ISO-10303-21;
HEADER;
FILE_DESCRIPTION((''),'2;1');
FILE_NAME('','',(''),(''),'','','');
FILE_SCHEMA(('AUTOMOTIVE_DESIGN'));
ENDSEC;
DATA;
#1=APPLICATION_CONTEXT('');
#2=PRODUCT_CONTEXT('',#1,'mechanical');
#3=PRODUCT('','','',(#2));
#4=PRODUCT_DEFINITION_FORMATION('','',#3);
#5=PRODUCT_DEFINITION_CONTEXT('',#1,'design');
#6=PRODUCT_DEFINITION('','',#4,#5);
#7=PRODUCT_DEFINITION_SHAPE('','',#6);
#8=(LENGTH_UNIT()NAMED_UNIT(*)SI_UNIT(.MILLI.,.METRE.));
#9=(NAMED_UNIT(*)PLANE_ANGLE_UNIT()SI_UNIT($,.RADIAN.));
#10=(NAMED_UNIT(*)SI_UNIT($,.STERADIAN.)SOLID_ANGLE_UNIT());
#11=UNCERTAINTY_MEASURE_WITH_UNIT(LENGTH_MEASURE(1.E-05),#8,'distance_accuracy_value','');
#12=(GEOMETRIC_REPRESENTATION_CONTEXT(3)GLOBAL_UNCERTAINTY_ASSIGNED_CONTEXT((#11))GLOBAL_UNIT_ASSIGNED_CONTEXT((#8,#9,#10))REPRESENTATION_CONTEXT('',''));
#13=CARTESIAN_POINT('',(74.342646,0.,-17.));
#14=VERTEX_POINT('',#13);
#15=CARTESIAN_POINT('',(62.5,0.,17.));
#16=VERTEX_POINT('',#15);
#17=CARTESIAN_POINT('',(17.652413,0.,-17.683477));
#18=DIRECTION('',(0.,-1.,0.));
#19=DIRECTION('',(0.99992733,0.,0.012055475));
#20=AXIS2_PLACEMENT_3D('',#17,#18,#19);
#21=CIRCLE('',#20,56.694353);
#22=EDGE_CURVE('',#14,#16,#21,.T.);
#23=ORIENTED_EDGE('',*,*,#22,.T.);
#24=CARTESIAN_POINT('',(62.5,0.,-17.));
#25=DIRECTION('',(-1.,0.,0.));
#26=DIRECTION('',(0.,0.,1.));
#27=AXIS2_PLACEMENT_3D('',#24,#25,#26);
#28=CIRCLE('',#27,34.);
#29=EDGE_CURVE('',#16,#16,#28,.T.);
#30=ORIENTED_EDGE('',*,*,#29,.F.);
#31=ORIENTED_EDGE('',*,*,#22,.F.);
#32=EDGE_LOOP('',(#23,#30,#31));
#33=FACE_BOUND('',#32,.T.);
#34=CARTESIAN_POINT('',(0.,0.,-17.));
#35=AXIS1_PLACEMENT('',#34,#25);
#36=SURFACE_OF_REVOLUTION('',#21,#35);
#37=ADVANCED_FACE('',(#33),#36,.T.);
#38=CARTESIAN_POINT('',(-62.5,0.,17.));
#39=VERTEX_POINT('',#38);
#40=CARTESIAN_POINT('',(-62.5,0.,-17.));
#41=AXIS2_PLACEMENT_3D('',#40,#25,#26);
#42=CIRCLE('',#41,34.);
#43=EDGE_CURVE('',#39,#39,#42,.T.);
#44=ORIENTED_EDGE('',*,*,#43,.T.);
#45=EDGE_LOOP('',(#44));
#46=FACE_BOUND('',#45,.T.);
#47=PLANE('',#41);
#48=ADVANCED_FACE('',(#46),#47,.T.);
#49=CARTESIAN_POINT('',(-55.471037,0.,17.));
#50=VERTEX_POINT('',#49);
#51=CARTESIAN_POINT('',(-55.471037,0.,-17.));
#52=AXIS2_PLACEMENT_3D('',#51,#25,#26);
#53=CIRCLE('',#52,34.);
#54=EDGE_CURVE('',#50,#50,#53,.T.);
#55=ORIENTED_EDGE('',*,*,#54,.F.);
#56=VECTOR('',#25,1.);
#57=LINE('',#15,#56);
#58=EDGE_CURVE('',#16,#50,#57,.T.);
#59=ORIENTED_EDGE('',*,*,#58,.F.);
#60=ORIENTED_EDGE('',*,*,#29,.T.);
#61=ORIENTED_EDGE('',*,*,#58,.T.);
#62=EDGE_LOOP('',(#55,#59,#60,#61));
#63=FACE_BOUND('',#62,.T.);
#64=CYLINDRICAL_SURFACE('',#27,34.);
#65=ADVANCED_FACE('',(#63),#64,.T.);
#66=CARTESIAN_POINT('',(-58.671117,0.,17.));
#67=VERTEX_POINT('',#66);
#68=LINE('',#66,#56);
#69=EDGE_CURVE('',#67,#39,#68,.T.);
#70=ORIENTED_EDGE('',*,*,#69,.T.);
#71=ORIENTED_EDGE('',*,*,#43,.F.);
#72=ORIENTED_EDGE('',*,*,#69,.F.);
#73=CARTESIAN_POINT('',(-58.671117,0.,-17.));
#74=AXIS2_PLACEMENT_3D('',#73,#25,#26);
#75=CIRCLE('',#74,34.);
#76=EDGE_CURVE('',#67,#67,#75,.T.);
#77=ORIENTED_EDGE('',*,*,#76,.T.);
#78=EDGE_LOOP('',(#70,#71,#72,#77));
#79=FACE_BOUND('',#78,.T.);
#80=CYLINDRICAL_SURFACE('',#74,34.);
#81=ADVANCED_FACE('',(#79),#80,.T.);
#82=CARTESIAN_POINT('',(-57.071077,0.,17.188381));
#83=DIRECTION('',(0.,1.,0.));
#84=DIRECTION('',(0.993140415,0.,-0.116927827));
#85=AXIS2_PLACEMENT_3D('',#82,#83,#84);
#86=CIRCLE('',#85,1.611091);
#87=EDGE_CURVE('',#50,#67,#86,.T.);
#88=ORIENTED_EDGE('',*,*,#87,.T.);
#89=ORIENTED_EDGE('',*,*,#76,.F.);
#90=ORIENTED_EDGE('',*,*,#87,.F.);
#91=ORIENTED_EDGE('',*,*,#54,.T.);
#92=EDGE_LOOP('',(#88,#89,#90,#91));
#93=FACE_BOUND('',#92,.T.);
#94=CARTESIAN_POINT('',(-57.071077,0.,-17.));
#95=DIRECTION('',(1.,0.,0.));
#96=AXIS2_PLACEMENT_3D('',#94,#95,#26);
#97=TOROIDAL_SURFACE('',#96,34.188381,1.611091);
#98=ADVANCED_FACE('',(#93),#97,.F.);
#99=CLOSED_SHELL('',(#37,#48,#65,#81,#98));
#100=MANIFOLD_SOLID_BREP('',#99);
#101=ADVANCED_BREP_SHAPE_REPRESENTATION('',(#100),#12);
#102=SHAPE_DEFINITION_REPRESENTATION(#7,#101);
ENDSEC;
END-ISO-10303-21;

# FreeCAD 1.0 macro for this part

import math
import FreeCAD as App
import Part
import Sketcher
from FreeCAD import Vector
Q = App.Units.Quantity

doc = App.newDocument("Part")
body = doc.addObject("PartDesign::Body", "Body")

sketch1 = body.newObject("Sketcher::SketchObject", "Sketch")
sketch1.AttachmentSupport = (doc.getObject("XZ_Plane"), [""])
sketch1.MapMode = "FlatFace"
sketch1.addGeometry([
    Part.ArcOfCircle(Part.Circle(Vector(17.652413, -17.683477, 0), Vector(0, 0, 1), 56.694353), math.radians(0.690745), math.radians(37.71705)),
    Part.LineSegment(Vector(62.5, 17, 0), Vector(-55.471037, 17, 0)),
    Part.ArcOfCircle(Part.Circle(Vector(-57.071077, 17.188381, 0), Vector(0, 0, 1), 1.611091), math.radians(-173.285168), math.radians(-6.714832)),
    Part.LineSegment(Vector(-58.671117, 17, 0), Vector(-62.5, 17, 0)),
    Part.LineSegment(Vector(-62.5, 17, 0), Vector(-62.5, -17, 0)),
    Part.LineSegment(Vector(-62.5, -17, 0), Vector(74.342646, -17, 0)),
], False)
sketch1.addGeometry(Part.LineSegment(Vector(74.342646, -17, 0), Vector(-62.5, -17, 0)), True)
sketch1.addConstraint([
    Sketcher.Constraint("Coincident", 0, 2, 1, 1),
    Sketcher.Constraint("Coincident", 1, 2, 2, 2),
    Sketcher.Constraint("Coincident", 2, 1, 3, 1),
    Sketcher.Constraint("Coincident", 3, 2, 4, 1),
    Sketcher.Constraint("Coincident", 4, 2, 5, 1),
    Sketcher.Constraint("Coincident", 5, 2, 0, 1),
    Sketcher.Constraint("Horizontal", 1),
    Sketcher.Constraint("Horizontal", 3),
    Sketcher.Constraint("Vertical", 4),
    Sketcher.Constraint("Horizontal", 5),
    Sketcher.Constraint("Horizontal", 6),
    Sketcher.Constraint("Coincident", 6, 1, 5, 2),
    Sketcher.Constraint("Symmetric", 0, 2, 4, 2, -1, 1),
    Sketcher.Constraint("Symmetric", 3, 2, 6, 2, -1),
    Sketcher.Constraint("DistanceY", 4, 2, 4, 1, Q("34 mm")),
    Sketcher.Constraint("DistanceX", 3, 2, 0, 2, Q("125 mm")),
    Sketcher.Constraint("Radius", 2, Q("1.611091 mm")),
    Sketcher.Constraint("Radius", 0, Q("56.694353 mm")),
    Sketcher.Constraint("DistanceX", 1, 2, 1, 1, Q("117.971037 mm")),
    Sketcher.Constraint("DistanceX", 3, 2, 3, 1, Q("3.828883 mm")),
    Sketcher.Constraint("DistanceX", 5, 1, 5, 2, Q("136.842646 mm")),
])
revolution = body.newObject("PartDesign::Revolution", "Revolution")
revolution.Profile = sketch1
revolution.ReferenceAxis = (sketch1, ["Axis0"])
revolution.Angle = 360

doc.recompute()
